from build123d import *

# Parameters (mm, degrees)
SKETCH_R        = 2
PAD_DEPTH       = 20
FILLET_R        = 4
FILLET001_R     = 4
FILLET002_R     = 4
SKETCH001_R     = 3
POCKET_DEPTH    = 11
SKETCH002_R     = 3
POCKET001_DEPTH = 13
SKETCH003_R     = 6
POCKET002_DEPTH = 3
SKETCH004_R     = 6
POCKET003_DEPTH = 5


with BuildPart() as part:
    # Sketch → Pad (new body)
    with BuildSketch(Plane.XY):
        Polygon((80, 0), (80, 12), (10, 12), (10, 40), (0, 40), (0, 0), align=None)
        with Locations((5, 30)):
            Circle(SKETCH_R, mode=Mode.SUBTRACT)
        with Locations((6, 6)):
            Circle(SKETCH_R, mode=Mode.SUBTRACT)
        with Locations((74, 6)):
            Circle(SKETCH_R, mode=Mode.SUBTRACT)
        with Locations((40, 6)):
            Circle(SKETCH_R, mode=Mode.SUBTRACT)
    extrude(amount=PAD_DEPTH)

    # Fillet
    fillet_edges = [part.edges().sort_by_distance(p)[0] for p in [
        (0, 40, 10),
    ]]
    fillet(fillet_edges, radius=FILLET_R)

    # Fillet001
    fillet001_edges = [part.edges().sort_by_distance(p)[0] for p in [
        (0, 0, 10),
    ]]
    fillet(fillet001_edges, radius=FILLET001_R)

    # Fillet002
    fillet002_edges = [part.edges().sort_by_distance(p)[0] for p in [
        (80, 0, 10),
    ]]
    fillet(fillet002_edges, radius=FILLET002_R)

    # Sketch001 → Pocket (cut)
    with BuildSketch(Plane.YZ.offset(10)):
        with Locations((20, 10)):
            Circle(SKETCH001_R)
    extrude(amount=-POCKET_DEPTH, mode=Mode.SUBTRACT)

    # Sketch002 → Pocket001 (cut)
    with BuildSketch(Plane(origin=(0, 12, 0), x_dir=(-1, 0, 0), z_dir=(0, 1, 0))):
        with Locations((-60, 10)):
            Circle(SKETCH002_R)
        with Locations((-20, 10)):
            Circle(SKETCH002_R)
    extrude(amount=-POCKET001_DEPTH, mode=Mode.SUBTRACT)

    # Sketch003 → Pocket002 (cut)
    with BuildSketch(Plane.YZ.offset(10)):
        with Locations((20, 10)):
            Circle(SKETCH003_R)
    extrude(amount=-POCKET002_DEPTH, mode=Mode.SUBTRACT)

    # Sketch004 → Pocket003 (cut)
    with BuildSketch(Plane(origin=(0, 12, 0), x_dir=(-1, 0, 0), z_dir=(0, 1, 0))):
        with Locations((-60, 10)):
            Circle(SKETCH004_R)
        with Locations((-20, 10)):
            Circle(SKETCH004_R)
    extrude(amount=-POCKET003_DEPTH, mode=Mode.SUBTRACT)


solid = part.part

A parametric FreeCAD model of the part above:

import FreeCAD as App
import Part
import Sketcher
from FreeCAD import Vector
Q = App.Units.Quantity


def edges_at(feature, points):
    """Names of the edges that pass closest to the given points."""
    edges = feature.Shape.Edges
    near = lambda p: min(range(len(edges)), key=lambda i: edges[i].distToShape(Part.Vertex(*p))[0])
    return sorted({f"Edge{near(p) + 1}" for p in points})

doc = App.newDocument("Part")
body = doc.addObject("PartDesign::Body", "Body")

sketch1 = doc.addObject("Sketcher::SketchObject", "Sketch")
body.addObject(sketch1)
sketch1.AttachmentSupport = (doc.XY_Plane, [""])
sketch1.MapMode = "FlatFace"
sketch1.addGeometry([
    Part.LineSegment(Vector(80, 0, 0), Vector(80, 12, 0)),
    Part.LineSegment(Vector(80, 12, 0), Vector(10, 12, 0)),
    Part.LineSegment(Vector(10, 12, 0), Vector(10, 40, 0)),
    Part.LineSegment(Vector(10, 40, 0), Vector(0, 40, 0)),
    Part.LineSegment(Vector(0, 40, 0), Vector(0, 0, 0)),
    Part.LineSegment(Vector(0, 0, 0), Vector(80, 0, 0)),
    Part.Circle(Vector(6, 6, 0), Vector(0, 0, 1), 2),
    Part.Circle(Vector(40, 6, 0), Vector(0, 0, 1), 2),
    Part.Circle(Vector(74, 6, 0), Vector(0, 0, 1), 2),
    Part.Circle(Vector(5, 30, 0), Vector(0, 0, 1), 2),
], False)
sketch1.addConstraint([
    Sketcher.Constraint("Coincident", 0, 2, 1, 1),
    Sketcher.Constraint("Coincident", 1, 2, 2, 1),
    Sketcher.Constraint("Coincident", 2, 2, 3, 1),
    Sketcher.Constraint("Coincident", 3, 2, 4, 1),
    Sketcher.Constraint("Coincident", 4, 2, 5, 1),
    Sketcher.Constraint("Coincident", 5, 2, 0, 1),
    Sketcher.Constraint("Vertical", 0),
    Sketcher.Constraint("Horizontal", 1),
    Sketcher.Constraint("Vertical", 2),
    Sketcher.Constraint("Horizontal", 3),
    Sketcher.Constraint("Vertical", 4),
    Sketcher.Constraint("Horizontal", 5),
    Sketcher.Constraint("Coincident", 4, 2, -1, 1),
    Sketcher.Constraint("Equal", 6, 7),
    Sketcher.Constraint("Equal", 7, 8),
    Sketcher.Constraint("Equal", 8, 9),
    Sketcher.Constraint("Horizontal", 6, 3, 7, 3),
    Sketcher.Constraint("Horizontal", 7, 3, 8, 3),
    Sketcher.Constraint("Diameter", 6, Q("4 mm")),
    Sketcher.Constraint("DistanceX", 1, 2, 1, 1, Q("70 mm")),
    Sketcher.Constraint("DistanceX", 3, 2, 3, 1, Q("10 mm")),
    Sketcher.Constraint("DistanceY", 0, 1, 0, 2, Q("12 mm")),
    Sketcher.Constraint("DistanceY", 2, 1, 2, 2, Q("28 mm")),
    Sketcher.Constraint("DistanceX", -1, 1, 6, 3, Q("6 mm")),
    Sketcher.Constraint("DistanceY", -1, 1, 6, 3, Q("6 mm")),
    Sketcher.Constraint("DistanceX", -1, 1, 7, 3, Q("40 mm")),
    Sketcher.Constraint("DistanceX", -1, 1, 8, 3, Q("74 mm")),
    Sketcher.Constraint("DistanceX", -1, 1, 9, 3, Q("5 mm")),
    Sketcher.Constraint("DistanceY", -1, 1, 9, 3, Q("30 mm")),
])
pad1 = doc.addObject("PartDesign::Pad", "Pad")
body.addObject(pad1)
pad1.Profile = sketch1
pad1.Length = 20
doc.recompute()

fillet = doc.addObject("PartDesign::Fillet", "Fillet")
body.addObject(fillet)
fillet.Base = (pad1, edges_at(pad1, [(0, 40, 10)]))
fillet.Radius = 4
doc.recompute()

fillet2 = doc.addObject("PartDesign::Fillet", "Fillet001")
body.addObject(fillet2)
fillet2.Base = (fillet, edges_at(fillet, [(0, 0, 10)]))
fillet2.Radius = 4
doc.recompute()

fillet3 = doc.addObject("PartDesign::Fillet", "Fillet002")
body.addObject(fillet3)
fillet3.Base = (fillet2, edges_at(fillet2, [(80, 0, 10)]))
fillet3.Radius = 4

sketch2 = doc.addObject("Sketcher::SketchObject", "Sketch001")
body.addObject(sketch2)
sketch2.AttachmentSupport = (doc.YZ_Plane, [""])
sketch2.MapMode = "FlatFace"
sketch2.AttachmentOffset = App.Placement(Vector(0, 0, 10), App.Rotation())
sketch2.addGeometry(Part.Circle(Vector(20, 10, 0), Vector(0, 0, 1), 3), False)
sketch2.addConstraint([
    Sketcher.Constraint("Diameter", 0, Q("6 mm")),
    Sketcher.Constraint("DistanceX", -1, 1, 0, 3, Q("20 mm")),
    Sketcher.Constraint("DistanceY", -1, 1, 0, 3, Q("10 mm")),
])
pocket1 = doc.addObject("PartDesign::Pocket", "Pocket")
body.addObject(pocket1)
pocket1.Profile = sketch2
pocket1.Length = 11

sketch3 = doc.addObject("Sketcher::SketchObject", "Sketch002")
body.addObject(sketch3)
sketch3.AttachmentSupport = (doc.XZ_Plane, [""])
sketch3.MapMode = "FlatFace"
sketch3.AttachmentOffset = App.Placement(Vector(0, 0, -12), App.Rotation())
sketch3.addGeometry([
    Part.Circle(Vector(60, 10, 0), Vector(0, 0, 1), 3),
    Part.Circle(Vector(20, 10, 0), Vector(0, 0, 1), 3),
], False)
sketch3.addConstraint([
    Sketcher.Constraint("Equal", 0, 1),
    Sketcher.Constraint("Horizontal", 0, 3, 1, 3),
    Sketcher.Constraint("Diameter", 0, Q("6 mm")),
    Sketcher.Constraint("DistanceX", -1, 1, 0, 3, Q("60 mm")),
    Sketcher.Constraint("DistanceY", -1, 1, 0, 3, Q("10 mm")),
    Sketcher.Constraint("DistanceX", -1, 1, 1, 3, Q("20 mm")),
])
pocket2 = doc.addObject("PartDesign::Pocket", "Pocket001")
body.addObject(pocket2)
pocket2.Profile = sketch3
pocket2.Length = 13
pocket2.Reversed = True

sketch4 = doc.addObject("Sketcher::SketchObject", "Sketch003")
body.addObject(sketch4)
sketch4.AttachmentSupport = (doc.YZ_Plane, [""])
sketch4.MapMode = "FlatFace"
sketch4.AttachmentOffset = App.Placement(Vector(0, 0, 10), App.Rotation())
sketch4.addGeometry(Part.Circle(Vector(20, 10, 0), Vector(0, 0, 1), 6), False)
sketch4.addConstraint([
    Sketcher.Constraint("Diameter", 0, Q("12 mm")),
    Sketcher.Constraint("DistanceX", -1, 1, 0, 3, Q("20 mm")),
    Sketcher.Constraint("DistanceY", -1, 1, 0, 3, Q("10 mm")),
])
pocket3 = doc.addObject("PartDesign::Pocket", "Pocket002")
body.addObject(pocket3)
pocket3.Profile = sketch4
pocket3.Length = 3

sketch5 = doc.addObject("Sketcher::SketchObject", "Sketch004")
body.addObject(sketch5)
sketch5.AttachmentSupport = (doc.XZ_Plane, [""])
sketch5.MapMode = "FlatFace"
sketch5.AttachmentOffset = App.Placement(Vector(0, 0, -12), App.Rotation())
sketch5.addGeometry([
    Part.Circle(Vector(60, 10, 0), Vector(0, 0, 1), 6),
    Part.Circle(Vector(20, 10, 0), Vector(0, 0, 1), 6),
], False)
sketch5.addConstraint([
    Sketcher.Constraint("Equal", 0, 1),
    Sketcher.Constraint("Horizontal", 0, 3, 1, 3),
    Sketcher.Constraint("Diameter", 0, Q("12 mm")),
    Sketcher.Constraint("DistanceX", -1, 1, 0, 3, Q("60 mm")),
    Sketcher.Constraint("DistanceY", -1, 1, 0, 3, Q("10 mm")),
    Sketcher.Constraint("DistanceX", -1, 1, 1, 3, Q("20 mm")),
])
pocket4 = doc.addObject("PartDesign::Pocket", "Pocket003")
body.addObject(pocket4)
pocket4.Profile = sketch5
pocket4.Length = 5
pocket4.Reversed = True

doc.recompute()
